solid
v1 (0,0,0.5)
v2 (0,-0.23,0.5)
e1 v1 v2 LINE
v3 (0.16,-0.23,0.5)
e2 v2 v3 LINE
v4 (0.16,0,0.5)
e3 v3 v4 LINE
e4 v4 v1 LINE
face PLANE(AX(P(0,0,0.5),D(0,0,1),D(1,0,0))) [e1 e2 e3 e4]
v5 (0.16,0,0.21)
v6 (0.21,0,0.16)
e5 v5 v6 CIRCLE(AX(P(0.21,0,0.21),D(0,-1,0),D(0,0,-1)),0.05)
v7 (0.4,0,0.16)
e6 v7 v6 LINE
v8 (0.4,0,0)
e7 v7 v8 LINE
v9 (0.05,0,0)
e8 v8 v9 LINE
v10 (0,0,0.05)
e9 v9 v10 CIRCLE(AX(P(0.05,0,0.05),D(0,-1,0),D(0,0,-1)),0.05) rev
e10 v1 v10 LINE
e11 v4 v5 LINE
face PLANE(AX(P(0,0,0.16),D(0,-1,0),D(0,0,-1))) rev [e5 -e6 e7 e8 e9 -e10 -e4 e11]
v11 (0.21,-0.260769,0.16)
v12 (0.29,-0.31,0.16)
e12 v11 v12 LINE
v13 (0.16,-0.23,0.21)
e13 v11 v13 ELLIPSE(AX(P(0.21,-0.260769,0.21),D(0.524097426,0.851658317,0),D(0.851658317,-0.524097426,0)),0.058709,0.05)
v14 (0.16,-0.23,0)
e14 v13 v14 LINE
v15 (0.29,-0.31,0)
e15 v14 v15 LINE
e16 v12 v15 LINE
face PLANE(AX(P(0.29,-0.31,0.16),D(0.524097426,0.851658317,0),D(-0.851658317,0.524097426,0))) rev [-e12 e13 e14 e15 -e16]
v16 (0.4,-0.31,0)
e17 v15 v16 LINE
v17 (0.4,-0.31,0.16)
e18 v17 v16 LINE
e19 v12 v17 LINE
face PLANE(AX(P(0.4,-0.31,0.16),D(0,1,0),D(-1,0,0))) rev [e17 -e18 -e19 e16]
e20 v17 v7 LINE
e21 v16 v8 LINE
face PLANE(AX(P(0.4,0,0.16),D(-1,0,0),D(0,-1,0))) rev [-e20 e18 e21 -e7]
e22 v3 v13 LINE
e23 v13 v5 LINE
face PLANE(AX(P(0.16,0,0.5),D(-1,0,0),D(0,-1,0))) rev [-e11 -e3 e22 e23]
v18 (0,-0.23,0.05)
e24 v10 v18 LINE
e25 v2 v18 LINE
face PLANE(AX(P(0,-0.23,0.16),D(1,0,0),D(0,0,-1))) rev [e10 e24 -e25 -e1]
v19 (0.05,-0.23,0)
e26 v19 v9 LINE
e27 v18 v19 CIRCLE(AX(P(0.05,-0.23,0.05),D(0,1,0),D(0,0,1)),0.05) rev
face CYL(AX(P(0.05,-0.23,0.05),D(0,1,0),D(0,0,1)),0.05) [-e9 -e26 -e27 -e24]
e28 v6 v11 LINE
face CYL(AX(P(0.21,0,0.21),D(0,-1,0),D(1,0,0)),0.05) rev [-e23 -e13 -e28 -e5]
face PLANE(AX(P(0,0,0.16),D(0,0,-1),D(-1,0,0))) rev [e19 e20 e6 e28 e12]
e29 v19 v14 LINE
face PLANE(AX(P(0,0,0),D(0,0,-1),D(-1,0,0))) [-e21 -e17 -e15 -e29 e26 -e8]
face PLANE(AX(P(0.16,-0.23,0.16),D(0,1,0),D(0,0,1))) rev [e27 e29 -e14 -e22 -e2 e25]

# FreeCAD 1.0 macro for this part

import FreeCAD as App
import Part
import Sketcher

V = App.Vector


def edges_at(feature, points):
    """Names of the edges that pass closest to the given points."""
    edges = feature.Shape.Edges
    near = lambda p: min(range(len(edges)), key=lambda i: edges[i].distToShape(Part.Vertex(*p))[0])
    return sorted({f"Edge{near(p) + 1}" for p in points})

doc = App.newDocument("Part")
params = doc.addObject("Spreadsheet::Sheet", "Params")
for row, (alias, value) in enumerate([
    ("sketch1_width", "0.4 mm"),
    ("sketch1_width2", "0.16 mm"),
    ("sketch1_width3", "0.11 mm"),
    ("sketch1_height", "0.23 mm"),
    ("sketch1_height2", "0.31 mm"),
    ("pad1_length", "0.16 mm"),
    ("sketch2_width", "0.16 mm"),
    ("sketch2_height", "0.23 mm"),
    ("pad2_length", "0.34 mm"),
    ("fillet_radius", "0.05 mm"),
    ("fillet2_radius", "0.05 mm"),
], start=1):
    params.set(f"A{row}", alias)
    params.set(f"B{row}", "=" + value)
    params.setAlias(f"B{row}", alias)

body = doc.addObject("PartDesign::Body", "Body")

sketch1 = doc.addObject("Sketcher::SketchObject", "Sketch")
body.addObject(sketch1)
sketch1.AttachmentSupport = (doc.XY_Plane, [""])
sketch1.MapMode = "FlatFace"
sketch1.addGeometry([
    Part.LineSegment(V(0.4, 0, 0), V(0, 0, 0)),
    Part.LineSegment(V(0, 0, 0), V(0, -0.23, 0)),
    Part.LineSegment(V(0, -0.23, 0), V(0.16, -0.23, 0)),
    Part.LineSegment(V(0.16, -0.23, 0), V(0.29, -0.31, 0)),
    Part.LineSegment(V(0.29, -0.31, 0), V(0.4, -0.31, 0)),
    Part.LineSegment(V(0.4, -0.31, 0), V(0.4, 0, 0)),
], False)
sketch1.addConstraint([
    Sketcher.Constraint("Coincident", 0, 2, 1, 1),
    Sketcher.Constraint("Coincident", 1, 2, 2, 1),
    Sketcher.Constraint("Coincident", 2, 2, 3, 1),
    Sketcher.Constraint("Coincident", 3, 2, 4, 1),
    Sketcher.Constraint("Coincident", 4, 2, 5, 1),
    Sketcher.Constraint("Coincident", 5, 2, 0, 1),
    Sketcher.Constraint("Horizontal", 0),
    Sketcher.Constraint("Vertical", 1),
    Sketcher.Constraint("Horizontal", 2),
    Sketcher.Constraint("Horizontal", 4),
    Sketcher.Constraint("Vertical", 5),
    Sketcher.Constraint("Coincident", 0, 2, -1, 1),
    Sketcher.Constraint("DistanceX", 0, 2, 0, 1, 0.4),
    Sketcher.Constraint("DistanceX", 2, 1, 2, 2, 0.16),
    Sketcher.Constraint("DistanceX", 4, 1, 4, 2, 0.11),
    Sketcher.Constraint("DistanceY", 1, 2, 1, 1, 0.23),
    Sketcher.Constraint("DistanceY", 5, 1, 5, 2, 0.31),
])
sketch1.setExpression("Constraints[12]", "Params.sketch1_width")
sketch1.setExpression("Constraints[13]", "Params.sketch1_width2")
sketch1.setExpression("Constraints[14]", "Params.sketch1_width3")
sketch1.setExpression("Constraints[15]", "Params.sketch1_height")
sketch1.setExpression("Constraints[16]", "Params.sketch1_height2")
pad1 = doc.addObject("PartDesign::Pad", "Pad")
body.addObject(pad1)
pad1.Profile = sketch1
pad1.setExpression("Length", "Params.pad1_length")

sketch2 = doc.addObject("Sketcher::SketchObject", "Sketch001")
body.addObject(sketch2)
sketch2.AttachmentSupport = (doc.XY_Plane, [""])
sketch2.MapMode = "FlatFace"
sketch2.AttachmentOffset = App.Placement(V(0, 0, 0.16), App.Rotation())
sketch2.addGeometry([
    Part.LineSegment(V(0, 0, 0), V(0, -0.23, 0)),
    Part.LineSegment(V(0, -0.23, 0), V(0.16, -0.23, 0)),
    Part.LineSegment(V(0.16, -0.23, 0), V(0.16, 0, 0)),
    Part.LineSegment(V(0.16, 0, 0), V(0, 0, 0)),
], False)
sketch2.addConstraint([
    Sketcher.Constraint("Coincident", 0, 2, 1, 1),
    Sketcher.Constraint("Coincident", 1, 2, 2, 1),
    Sketcher.Constraint("Coincident", 2, 2, 3, 1),
    Sketcher.Constraint("Coincident", 3, 2, 0, 1),
    Sketcher.Constraint("Vertical", 0),
    Sketcher.Constraint("Horizontal", 1),
    Sketcher.Constraint("Vertical", 2),
    Sketcher.Constraint("Horizontal", 3),
    Sketcher.Constraint("Coincident", 3, 2, -1, 1),
    Sketcher.Constraint("DistanceX", 1, 1, 1, 2, 0.16),
    Sketcher.Constraint("DistanceY", 0, 2, 0, 1, 0.23),
])
sketch2.setExpression("Constraints[9]", "Params.sketch2_width")
sketch2.setExpression("Constraints[10]", "Params.sketch2_height")
pad2 = doc.addObject("PartDesign::Pad", "Pad001")
body.addObject(pad2)
pad2.Profile = sketch2
pad2.setExpression("Length", "Params.pad2_length")
doc.recompute()

fillet = doc.addObject("PartDesign::Fillet", "Fillet")
body.addObject(fillet)
fillet.Base = (pad2, edges_at(pad2, [(0, -0.115, 0)]))
fillet.setExpression("Radius", "Params.fillet_radius")
doc.recompute()

fillet2 = doc.addObject("PartDesign::Fillet", "Fillet001")
body.addObject(fillet2)
fillet2.Base = (fillet, edges_at(fillet, [(0.16, -0.115, 0.16)]))
fillet2.setExpression("Radius", "Params.fillet2_radius")

doc.recompute()
